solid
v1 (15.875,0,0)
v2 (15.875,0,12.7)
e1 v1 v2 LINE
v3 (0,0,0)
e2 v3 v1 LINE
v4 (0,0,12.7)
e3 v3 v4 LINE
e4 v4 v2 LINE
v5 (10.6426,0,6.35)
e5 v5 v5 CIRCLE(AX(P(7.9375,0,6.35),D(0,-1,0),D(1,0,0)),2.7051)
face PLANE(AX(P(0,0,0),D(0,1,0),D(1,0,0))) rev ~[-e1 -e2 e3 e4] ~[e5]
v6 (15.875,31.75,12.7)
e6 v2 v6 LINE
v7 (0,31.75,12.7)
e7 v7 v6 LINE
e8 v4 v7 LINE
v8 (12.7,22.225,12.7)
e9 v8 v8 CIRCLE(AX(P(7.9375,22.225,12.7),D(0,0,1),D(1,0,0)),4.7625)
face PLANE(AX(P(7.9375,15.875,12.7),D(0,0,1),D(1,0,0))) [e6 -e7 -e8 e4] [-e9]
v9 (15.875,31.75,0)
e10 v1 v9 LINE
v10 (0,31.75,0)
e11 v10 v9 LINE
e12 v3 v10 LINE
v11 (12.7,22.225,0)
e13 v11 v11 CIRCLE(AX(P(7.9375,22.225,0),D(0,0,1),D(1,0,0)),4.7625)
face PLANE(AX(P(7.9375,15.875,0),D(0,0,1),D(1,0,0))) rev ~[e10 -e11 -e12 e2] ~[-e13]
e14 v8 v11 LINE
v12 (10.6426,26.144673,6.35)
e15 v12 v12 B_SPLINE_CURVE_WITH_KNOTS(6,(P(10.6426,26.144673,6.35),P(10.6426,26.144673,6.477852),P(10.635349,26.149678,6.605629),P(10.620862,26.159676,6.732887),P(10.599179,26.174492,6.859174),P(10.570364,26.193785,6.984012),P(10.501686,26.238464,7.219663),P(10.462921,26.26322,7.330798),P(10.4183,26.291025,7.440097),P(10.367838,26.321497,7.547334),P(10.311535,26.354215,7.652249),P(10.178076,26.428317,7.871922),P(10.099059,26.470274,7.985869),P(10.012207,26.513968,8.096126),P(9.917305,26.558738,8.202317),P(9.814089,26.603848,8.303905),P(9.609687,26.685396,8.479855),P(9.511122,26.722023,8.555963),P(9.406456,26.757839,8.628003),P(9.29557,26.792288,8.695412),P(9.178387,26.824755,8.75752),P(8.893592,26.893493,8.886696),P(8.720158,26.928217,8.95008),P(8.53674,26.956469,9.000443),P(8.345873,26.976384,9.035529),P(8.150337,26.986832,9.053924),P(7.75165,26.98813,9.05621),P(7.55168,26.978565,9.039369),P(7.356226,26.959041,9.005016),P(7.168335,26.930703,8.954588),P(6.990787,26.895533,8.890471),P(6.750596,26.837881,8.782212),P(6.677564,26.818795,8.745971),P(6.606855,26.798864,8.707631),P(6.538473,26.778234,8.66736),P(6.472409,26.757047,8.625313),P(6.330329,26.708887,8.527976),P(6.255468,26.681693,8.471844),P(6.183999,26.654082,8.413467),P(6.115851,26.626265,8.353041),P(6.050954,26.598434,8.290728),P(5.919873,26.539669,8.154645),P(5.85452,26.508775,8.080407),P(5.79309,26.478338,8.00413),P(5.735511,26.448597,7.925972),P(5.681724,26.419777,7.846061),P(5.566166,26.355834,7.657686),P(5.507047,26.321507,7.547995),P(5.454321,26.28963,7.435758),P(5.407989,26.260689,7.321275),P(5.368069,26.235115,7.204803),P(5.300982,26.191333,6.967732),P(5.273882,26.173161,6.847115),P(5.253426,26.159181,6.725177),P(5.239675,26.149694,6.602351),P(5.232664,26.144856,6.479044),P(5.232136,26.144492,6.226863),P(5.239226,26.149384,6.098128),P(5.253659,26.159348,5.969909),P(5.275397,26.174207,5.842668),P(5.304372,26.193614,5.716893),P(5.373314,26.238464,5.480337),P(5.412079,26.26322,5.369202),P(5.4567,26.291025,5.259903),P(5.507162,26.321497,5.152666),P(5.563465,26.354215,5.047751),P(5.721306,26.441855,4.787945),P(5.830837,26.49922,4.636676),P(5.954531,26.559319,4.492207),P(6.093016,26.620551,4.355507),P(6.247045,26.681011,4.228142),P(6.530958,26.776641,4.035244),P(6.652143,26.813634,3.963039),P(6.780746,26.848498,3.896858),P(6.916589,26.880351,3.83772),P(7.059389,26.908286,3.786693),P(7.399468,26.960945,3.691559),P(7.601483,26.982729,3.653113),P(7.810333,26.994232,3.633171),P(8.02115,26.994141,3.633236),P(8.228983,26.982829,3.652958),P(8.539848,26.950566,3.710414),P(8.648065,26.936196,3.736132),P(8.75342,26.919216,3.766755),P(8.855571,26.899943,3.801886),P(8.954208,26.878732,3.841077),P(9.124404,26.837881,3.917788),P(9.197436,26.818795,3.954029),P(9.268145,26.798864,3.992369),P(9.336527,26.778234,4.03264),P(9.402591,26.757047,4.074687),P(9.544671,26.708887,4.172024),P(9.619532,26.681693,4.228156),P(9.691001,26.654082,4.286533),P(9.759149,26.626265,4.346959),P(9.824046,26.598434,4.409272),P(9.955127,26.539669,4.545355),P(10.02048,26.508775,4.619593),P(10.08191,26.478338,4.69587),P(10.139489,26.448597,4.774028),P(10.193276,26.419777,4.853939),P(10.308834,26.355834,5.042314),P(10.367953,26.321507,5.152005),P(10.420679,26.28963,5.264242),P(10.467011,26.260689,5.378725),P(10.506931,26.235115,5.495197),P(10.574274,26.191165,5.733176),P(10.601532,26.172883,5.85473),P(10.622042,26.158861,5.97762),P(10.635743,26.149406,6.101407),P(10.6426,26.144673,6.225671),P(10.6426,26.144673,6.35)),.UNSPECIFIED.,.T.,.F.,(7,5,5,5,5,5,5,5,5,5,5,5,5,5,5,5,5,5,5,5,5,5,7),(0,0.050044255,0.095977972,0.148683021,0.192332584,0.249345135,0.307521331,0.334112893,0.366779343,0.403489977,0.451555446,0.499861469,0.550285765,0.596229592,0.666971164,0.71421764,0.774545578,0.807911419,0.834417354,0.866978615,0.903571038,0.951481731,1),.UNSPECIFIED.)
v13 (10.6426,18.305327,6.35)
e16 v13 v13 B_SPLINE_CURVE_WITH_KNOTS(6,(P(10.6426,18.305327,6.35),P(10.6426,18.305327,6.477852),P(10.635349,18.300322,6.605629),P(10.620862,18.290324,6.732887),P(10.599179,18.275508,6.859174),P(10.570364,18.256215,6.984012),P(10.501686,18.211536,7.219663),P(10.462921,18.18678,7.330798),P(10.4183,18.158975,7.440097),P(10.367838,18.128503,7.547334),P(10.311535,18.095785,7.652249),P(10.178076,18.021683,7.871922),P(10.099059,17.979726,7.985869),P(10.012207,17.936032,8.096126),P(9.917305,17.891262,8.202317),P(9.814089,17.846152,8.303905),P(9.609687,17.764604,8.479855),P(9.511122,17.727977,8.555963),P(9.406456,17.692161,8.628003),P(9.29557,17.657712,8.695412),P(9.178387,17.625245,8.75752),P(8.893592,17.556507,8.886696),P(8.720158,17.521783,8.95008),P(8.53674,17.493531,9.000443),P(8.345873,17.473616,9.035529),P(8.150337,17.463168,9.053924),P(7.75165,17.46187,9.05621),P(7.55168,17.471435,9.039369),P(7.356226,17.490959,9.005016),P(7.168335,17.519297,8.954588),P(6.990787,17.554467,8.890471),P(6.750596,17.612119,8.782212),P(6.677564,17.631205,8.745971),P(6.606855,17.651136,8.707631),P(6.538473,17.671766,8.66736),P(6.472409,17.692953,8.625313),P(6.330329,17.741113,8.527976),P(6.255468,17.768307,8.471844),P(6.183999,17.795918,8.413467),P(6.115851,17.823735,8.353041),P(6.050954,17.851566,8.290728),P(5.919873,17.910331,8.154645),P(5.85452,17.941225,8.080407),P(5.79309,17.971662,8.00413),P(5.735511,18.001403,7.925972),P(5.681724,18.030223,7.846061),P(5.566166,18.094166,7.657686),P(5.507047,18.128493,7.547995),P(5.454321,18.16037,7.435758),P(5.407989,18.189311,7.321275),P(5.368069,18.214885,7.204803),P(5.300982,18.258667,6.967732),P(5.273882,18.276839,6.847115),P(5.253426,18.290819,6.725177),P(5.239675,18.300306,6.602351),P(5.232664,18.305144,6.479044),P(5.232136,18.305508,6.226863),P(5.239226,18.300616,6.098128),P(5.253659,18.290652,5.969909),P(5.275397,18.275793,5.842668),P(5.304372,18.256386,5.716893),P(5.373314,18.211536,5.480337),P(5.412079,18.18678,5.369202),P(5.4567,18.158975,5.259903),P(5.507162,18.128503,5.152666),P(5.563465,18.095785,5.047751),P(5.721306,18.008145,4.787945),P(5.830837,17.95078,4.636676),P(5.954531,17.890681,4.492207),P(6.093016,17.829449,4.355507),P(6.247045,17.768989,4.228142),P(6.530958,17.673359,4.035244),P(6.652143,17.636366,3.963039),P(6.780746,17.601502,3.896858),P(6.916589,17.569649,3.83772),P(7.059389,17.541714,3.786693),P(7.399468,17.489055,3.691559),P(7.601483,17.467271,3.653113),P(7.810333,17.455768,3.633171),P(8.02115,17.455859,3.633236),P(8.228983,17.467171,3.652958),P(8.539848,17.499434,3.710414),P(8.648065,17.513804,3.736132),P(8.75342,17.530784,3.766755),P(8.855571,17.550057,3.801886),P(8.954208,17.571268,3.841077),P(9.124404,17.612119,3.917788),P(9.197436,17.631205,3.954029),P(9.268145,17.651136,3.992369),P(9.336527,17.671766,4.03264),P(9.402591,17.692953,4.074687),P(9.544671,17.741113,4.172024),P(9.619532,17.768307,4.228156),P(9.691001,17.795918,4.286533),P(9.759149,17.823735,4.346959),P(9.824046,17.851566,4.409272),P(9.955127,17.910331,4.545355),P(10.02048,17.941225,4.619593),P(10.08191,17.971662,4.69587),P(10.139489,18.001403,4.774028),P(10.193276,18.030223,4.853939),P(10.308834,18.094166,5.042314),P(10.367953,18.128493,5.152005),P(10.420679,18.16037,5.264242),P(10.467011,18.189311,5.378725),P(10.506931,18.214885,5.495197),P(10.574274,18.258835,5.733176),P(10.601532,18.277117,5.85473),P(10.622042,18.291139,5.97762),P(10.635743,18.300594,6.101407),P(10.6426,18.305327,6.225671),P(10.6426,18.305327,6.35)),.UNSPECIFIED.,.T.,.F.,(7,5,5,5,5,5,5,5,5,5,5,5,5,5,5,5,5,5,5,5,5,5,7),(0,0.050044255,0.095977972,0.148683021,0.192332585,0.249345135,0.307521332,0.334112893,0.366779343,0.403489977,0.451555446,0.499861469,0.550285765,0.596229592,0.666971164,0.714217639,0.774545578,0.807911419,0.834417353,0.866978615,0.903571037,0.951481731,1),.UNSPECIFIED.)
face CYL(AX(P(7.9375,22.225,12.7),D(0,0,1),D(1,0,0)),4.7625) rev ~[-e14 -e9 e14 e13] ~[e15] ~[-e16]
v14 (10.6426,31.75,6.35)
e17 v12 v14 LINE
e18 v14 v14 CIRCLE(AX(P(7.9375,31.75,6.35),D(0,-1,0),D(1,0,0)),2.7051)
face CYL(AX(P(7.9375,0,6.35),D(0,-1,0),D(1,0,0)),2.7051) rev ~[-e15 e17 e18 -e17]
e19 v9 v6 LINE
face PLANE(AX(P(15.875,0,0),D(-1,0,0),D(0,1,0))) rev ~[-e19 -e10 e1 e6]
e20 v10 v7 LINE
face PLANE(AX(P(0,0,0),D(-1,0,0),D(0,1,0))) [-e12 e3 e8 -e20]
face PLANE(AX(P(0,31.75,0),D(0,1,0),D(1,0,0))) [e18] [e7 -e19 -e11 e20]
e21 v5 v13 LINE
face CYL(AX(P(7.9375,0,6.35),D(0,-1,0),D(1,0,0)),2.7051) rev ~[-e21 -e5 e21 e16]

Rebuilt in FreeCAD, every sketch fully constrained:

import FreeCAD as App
import Part
import Sketcher

V = App.Vector
Q = App.Units.Quantity


def add_polygon(sketch, points):
    """Adds a closed chain of lines whose ends are joined by coincident constraints."""
    first, n = sketch.GeometryCount, len(points)
    for a, b in zip(points, points[1:] + points[:1]):
        sketch.addGeometry(Part.LineSegment(App.Vector(*a, 0), App.Vector(*b, 0)), False)
    for i in range(n):
        sketch.addConstraint(Sketcher.Constraint("Coincident", first + i, 2, first + (i + 1) % n, 1))

doc = App.newDocument("Part")
body = doc.addObject("PartDesign::Body", "Body")

# Sketch on XY plane
sketch1 = doc.addObject("Sketcher::SketchObject", "Sketch")
body.addObject(sketch1)
sketch1.AttachmentSupport = (doc.XY_Plane, [""])
sketch1.MapMode = "FlatFace"
add_polygon(sketch1, [(0, 32), (0, 0), (16, 0), (16, 32)])  # lines 0-3
sketch1.addConstraint([
    Sketcher.Constraint("Vertical", 0),
    Sketcher.Constraint("Horizontal", 1),
    Sketcher.Constraint("Vertical", 2),
    Sketcher.Constraint("Horizontal", 3),
    Sketcher.Constraint("Coincident", 0, 2, -1, 1),
    Sketcher.Constraint("DistanceY", 0, 2, 0, 1, Q("1.25 in")),
    Sketcher.Constraint("DistanceX", 1, 1, 1, 2, Q("0.625 in")),
])
pad1 = doc.addObject("PartDesign::Pad", "Pad")
body.addObject(pad1)
pad1.Profile = sketch1
pad1.Length = Q("0.5 in")

# Sketch on XY plane
sketch2 = doc.addObject("Sketcher::SketchObject", "Sketch001")
body.addObject(sketch2)
sketch2.AttachmentSupport = (doc.XY_Plane, [""])
sketch2.MapMode = "FlatFace"
sketch2.AttachmentOffset = App.Placement(V(0, 0, 0.5 * 25.4), App.Rotation())
sketch2.addGeometry(Part.Circle(V(7.9, 22.2, 0), V(0, 0, 1), 4.8), False)
sketch2.addConstraint([
    Sketcher.Constraint("Diameter", 0, Q("0.375 in")),
    Sketcher.Constraint("DistanceX", -1, 1, 0, 3, Q("0.3125 in")),
    Sketcher.Constraint("DistanceY", -1, 1, 0, 3, Q("0.875 in")),
])
pocket1 = doc.addObject("PartDesign::Pocket", "Pocket")
body.addObject(pocket1)
pocket1.Profile = sketch2
pocket1.Type = "ThroughAll"

# Sketch on XZ plane
sketch3 = doc.addObject("Sketcher::SketchObject", "Sketch002")
body.addObject(sketch3)
sketch3.AttachmentSupport = (doc.XZ_Plane, [""])
sketch3.MapMode = "FlatFace"
sketch3.addGeometry(Part.Circle(V(7.9, 6.3, 0), V(0, 0, 1), 2.7), False)
sketch3.addConstraint([
    Sketcher.Constraint("Diameter", 0, Q("0.213 in")),
    Sketcher.Constraint("DistanceY", -1, 1, 0, 3, Q("0.25 in")),
    Sketcher.Constraint("DistanceX", -1, 1, 0, 3, Q("0.3125 in")),
])
pocket2 = doc.addObject("PartDesign::Pocket", "Pocket001")
body.addObject(pocket2)
pocket2.Profile = sketch3
pocket2.Type = "ThroughAll"

doc.recompute()
